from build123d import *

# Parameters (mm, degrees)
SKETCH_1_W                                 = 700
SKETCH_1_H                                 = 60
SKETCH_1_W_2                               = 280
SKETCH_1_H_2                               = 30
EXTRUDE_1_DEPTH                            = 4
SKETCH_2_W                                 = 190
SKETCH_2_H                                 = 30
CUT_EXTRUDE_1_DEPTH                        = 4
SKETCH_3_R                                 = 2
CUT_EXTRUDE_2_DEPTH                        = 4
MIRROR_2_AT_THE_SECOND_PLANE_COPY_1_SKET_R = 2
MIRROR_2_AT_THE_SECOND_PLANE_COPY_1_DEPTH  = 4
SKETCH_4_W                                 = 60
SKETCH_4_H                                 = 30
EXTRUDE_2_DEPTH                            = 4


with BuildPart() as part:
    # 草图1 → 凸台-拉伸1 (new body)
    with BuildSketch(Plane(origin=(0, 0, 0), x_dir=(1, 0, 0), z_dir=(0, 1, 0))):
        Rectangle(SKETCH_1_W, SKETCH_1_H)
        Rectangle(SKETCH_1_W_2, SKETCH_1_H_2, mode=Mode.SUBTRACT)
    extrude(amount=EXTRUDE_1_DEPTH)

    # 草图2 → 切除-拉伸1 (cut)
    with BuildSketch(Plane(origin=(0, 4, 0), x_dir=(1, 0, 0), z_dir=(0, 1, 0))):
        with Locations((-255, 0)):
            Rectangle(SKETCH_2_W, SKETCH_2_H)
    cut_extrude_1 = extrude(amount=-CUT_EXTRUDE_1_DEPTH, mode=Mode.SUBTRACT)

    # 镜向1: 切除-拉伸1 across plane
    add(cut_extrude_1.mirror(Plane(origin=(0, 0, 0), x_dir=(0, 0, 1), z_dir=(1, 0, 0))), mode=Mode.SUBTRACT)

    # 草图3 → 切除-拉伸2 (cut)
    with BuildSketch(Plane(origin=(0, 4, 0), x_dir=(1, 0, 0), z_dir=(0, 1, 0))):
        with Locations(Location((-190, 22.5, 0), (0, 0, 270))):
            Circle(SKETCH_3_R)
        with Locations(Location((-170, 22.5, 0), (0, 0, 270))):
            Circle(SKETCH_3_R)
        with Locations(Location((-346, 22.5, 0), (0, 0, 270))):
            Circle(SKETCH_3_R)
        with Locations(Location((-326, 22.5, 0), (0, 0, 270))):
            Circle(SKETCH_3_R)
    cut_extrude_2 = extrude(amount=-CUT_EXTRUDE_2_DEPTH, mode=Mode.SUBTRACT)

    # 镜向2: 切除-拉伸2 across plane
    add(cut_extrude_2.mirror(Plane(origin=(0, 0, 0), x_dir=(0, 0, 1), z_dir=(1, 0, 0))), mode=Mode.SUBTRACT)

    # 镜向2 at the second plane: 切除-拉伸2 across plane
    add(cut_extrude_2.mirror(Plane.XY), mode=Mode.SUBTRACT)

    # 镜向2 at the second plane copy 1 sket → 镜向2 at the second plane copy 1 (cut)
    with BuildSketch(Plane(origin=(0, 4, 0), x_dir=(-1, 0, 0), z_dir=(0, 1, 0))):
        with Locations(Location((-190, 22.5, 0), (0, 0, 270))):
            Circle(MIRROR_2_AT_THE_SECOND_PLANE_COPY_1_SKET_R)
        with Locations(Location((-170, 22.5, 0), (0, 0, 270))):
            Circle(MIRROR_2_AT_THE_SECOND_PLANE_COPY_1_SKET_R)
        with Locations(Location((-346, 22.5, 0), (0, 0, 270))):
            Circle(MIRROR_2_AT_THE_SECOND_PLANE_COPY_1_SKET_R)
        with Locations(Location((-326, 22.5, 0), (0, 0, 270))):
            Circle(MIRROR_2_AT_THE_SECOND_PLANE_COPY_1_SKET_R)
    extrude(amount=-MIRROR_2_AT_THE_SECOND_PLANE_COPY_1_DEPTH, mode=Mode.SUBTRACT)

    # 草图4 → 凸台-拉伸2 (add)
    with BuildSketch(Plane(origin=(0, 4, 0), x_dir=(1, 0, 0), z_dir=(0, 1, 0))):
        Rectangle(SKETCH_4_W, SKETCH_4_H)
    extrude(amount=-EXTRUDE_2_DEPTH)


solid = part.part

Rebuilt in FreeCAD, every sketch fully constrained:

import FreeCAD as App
import Part
import Sketcher

V = App.Vector

doc = App.newDocument("Part")
body = doc.addObject("PartDesign::Body", "Body")

sketch1 = body.newObject("Sketcher::SketchObject", "Sketch")
sketch1.AttachmentSupport = (doc.getObject("XZ_Plane"), [""])
sketch1.MapMode = "FlatFace"
sketch1.addGeometry(Part.LineSegment(V(-350, -30, 0), V(-350, 30, 0)), False)
sketch1.addGeometry(Part.LineSegment(V(-350, 30, 0), V(350, 30, 0)), False)
sketch1.addGeometry(Part.LineSegment(V(350, 30, 0), V(350, -30, 0)), False)
sketch1.addGeometry(Part.LineSegment(V(350, -30, 0), V(-350, -30, 0)), False)
sketch1.addGeometry(Part.LineSegment(V(140, 15, 0), V(-140, 15, 0)), False)
sketch1.addGeometry(Part.LineSegment(V(-140, 15, 0), V(-140, -15, 0)), False)
sketch1.addGeometry(Part.LineSegment(V(-140, -15, 0), V(140, -15, 0)), False)
sketch1.addGeometry(Part.LineSegment(V(140, -15, 0), V(140, 15, 0)), False)
sketch1.addConstraint(Sketcher.Constraint("Coincident", 0, 2, 1, 1))
sketch1.addConstraint(Sketcher.Constraint("Coincident", 1, 2, 2, 1))
sketch1.addConstraint(Sketcher.Constraint("Coincident", 2, 2, 3, 1))
sketch1.addConstraint(Sketcher.Constraint("Coincident", 3, 2, 0, 1))
sketch1.addConstraint(Sketcher.Constraint("Coincident", 4, 2, 5, 1))
sketch1.addConstraint(Sketcher.Constraint("Coincident", 5, 2, 6, 1))
sketch1.addConstraint(Sketcher.Constraint("Coincident", 6, 2, 7, 1))
sketch1.addConstraint(Sketcher.Constraint("Coincident", 7, 2, 4, 1))
sketch1.addConstraint(Sketcher.Constraint("Vertical", 0))
sketch1.addConstraint(Sketcher.Constraint("Horizontal", 1))
sketch1.addConstraint(Sketcher.Constraint("Vertical", 2))
sketch1.addConstraint(Sketcher.Constraint("Horizontal", 3))
sketch1.addConstraint(Sketcher.Constraint("Horizontal", 4))
sketch1.addConstraint(Sketcher.Constraint("Vertical", 5))
sketch1.addConstraint(Sketcher.Constraint("Horizontal", 6))
sketch1.addConstraint(Sketcher.Constraint("Vertical", 7))
sketch1.addConstraint(Sketcher.Constraint("Symmetric", 0, 2, 2, 2, -1, 1))
sketch1.addConstraint(Sketcher.Constraint("Symmetric", 4, 2, 6, 2, -1, 1))
sketch1.addConstraint(Sketcher.Constraint("DistanceX", 1, 1, 1, 2, 700.0))
sketch1.addConstraint(Sketcher.Constraint("DistanceX", 4, 2, 4, 1, 280.0))
sketch1.addConstraint(Sketcher.Constraint("DistanceY", 0, 1, 0, 2, 60.0))
sketch1.addConstraint(Sketcher.Constraint("DistanceY", 5, 2, 5, 1, 30.0))
pad1 = body.newObject("PartDesign::Pad", "Pad")
pad1.Profile = sketch1
pad1.Length = 4
pad1.Reversed = True

sketch2 = body.newObject("Sketcher::SketchObject", "Sketch001")
sketch2.AttachmentSupport = (doc.getObject("XZ_Plane"), [""])
sketch2.MapMode = "FlatFace"
sketch2.AttachmentOffset = App.Placement(V(0, 0, -4), App.Rotation())
sketch2.addGeometry(Part.LineSegment(V(-350, -15, 0), V(-350, 15, 0)), False)
sketch2.addGeometry(Part.LineSegment(V(-350, 15, 0), V(-160, 15, 0)), False)
sketch2.addGeometry(Part.LineSegment(V(-160, 15, 0), V(-160, -15, 0)), False)
sketch2.addGeometry(Part.LineSegment(V(-160, -15, 0), V(-350, -15, 0)), False)
sketch2.addConstraint(Sketcher.Constraint("Coincident", 0, 2, 1, 1))
sketch2.addConstraint(Sketcher.Constraint("Coincident", 1, 2, 2, 1))
sketch2.addConstraint(Sketcher.Constraint("Coincident", 2, 2, 3, 1))
sketch2.addConstraint(Sketcher.Constraint("Coincident", 3, 2, 0, 1))
sketch2.addConstraint(Sketcher.Constraint("Vertical", 0))
sketch2.addConstraint(Sketcher.Constraint("Horizontal", 1))
sketch2.addConstraint(Sketcher.Constraint("Vertical", 2))
sketch2.addConstraint(Sketcher.Constraint("Horizontal", 3))
sketch2.addConstraint(Sketcher.Constraint("DistanceX", 1, 1, 1, 2, 190.0))
sketch2.addConstraint(Sketcher.Constraint("DistanceY", 0, 1, 0, 2, 30.0))
sketch2.addConstraint(Sketcher.Constraint("DistanceX", 0, 2, -1, 1, 350.0))
sketch2.addConstraint(Sketcher.Constraint("DistanceY", -1, 1, 0, 2, 15.0))
pocket1 = body.newObject("PartDesign::Pocket", "Pocket")
pocket1.Profile = sketch2
pocket1.Length = 4
pocket1.Reversed = True
doc.recompute()

mirrored = body.newObject("PartDesign::Mirrored", "Mirrored")
mirrored.Originals = [pocket1]
mirrored.MirrorPlane = (doc.getObject("YZ_Plane"), [""])
body.Tip = mirrored

sketch3 = body.newObject("Sketcher::SketchObject", "Sketch002")
sketch3.AttachmentSupport = (doc.getObject("XZ_Plane"), [""])
sketch3.MapMode = "FlatFace"
sketch3.AttachmentOffset = App.Placement(V(0, 0, -4), App.Rotation())
sketch3.addGeometry(Part.Circle(V(-190, -22.5, 0), V(0, 0, 1), 2), False)
sketch3.addGeometry(Part.Circle(V(-170, -22.5, 0), V(0, 0, 1), 2), False)
sketch3.addGeometry(Part.Circle(V(-346, -22.5, 0), V(0, 0, 1), 2), False)
sketch3.addGeometry(Part.Circle(V(-326, -22.5, 0), V(0, 0, 1), 2), False)
sketch3.addConstraint(Sketcher.Constraint("Equal", 0, 1))
sketch3.addConstraint(Sketcher.Constraint("Equal", 1, 2))
sketch3.addConstraint(Sketcher.Constraint("Equal", 2, 3))
sketch3.addConstraint(Sketcher.Constraint("Horizontal", 0, 3, 1, 3))
sketch3.addConstraint(Sketcher.Constraint("Horizontal", 1, 3, 2, 3))
sketch3.addConstraint(Sketcher.Constraint("Horizontal", 2, 3, 3, 3))
sketch3.addConstraint(Sketcher.Constraint("Diameter", 0, 4.0))
sketch3.addConstraint(Sketcher.Constraint("DistanceX", 0, 3, -1, 1, 190.0))
sketch3.addConstraint(Sketcher.Constraint("DistanceX", 1, 3, -1, 1, 170.0))
sketch3.addConstraint(Sketcher.Constraint("DistanceX", 2, 3, -1, 1, 346.0))
sketch3.addConstraint(Sketcher.Constraint("DistanceX", 3, 3, -1, 1, 326.0))
sketch3.addConstraint(Sketcher.Constraint("DistanceY", 0, 3, -1, 1, 22.5))
pocket2 = body.newObject("PartDesign::Pocket", "Pocket001")
pocket2.Profile = sketch3
pocket2.Length = 4
pocket2.Reversed = True
doc.recompute()

mirrored2 = body.newObject("PartDesign::Mirrored", "Mirrored001")
mirrored2.Originals = [pocket2]
mirrored2.MirrorPlane = (doc.getObject("YZ_Plane"), [""])
body.Tip = mirrored2
doc.recompute()

mirrored3 = body.newObject("PartDesign::Mirrored", "Mirrored002")
mirrored3.Originals = [pocket2]
mirrored3.MirrorPlane = (doc.getObject("XY_Plane"), [""])
body.Tip = mirrored3

sketch4 = body.newObject("Sketcher::SketchObject", "Sketch003")
sketch4.AttachmentSupport = (doc.getObject("XZ_Plane"), [""])
sketch4.MapMode = "FlatFace"
sketch4.AttachmentOffset = App.Placement(V(0, 0, -4), App.Rotation())
sketch4.addGeometry(Part.Circle(V(190, 22.5, 0), V(0, 0, 1), 2), False)
sketch4.addGeometry(Part.Circle(V(170, 22.5, 0), V(0, 0, 1), 2), False)
sketch4.addGeometry(Part.Circle(V(346, 22.5, 0), V(0, 0, 1), 2), False)
sketch4.addGeometry(Part.Circle(V(326, 22.5, 0), V(0, 0, 1), 2), False)
sketch4.addConstraint(Sketcher.Constraint("Equal", 0, 1))
sketch4.addConstraint(Sketcher.Constraint("Equal", 1, 2))
sketch4.addConstraint(Sketcher.Constraint("Equal", 2, 3))
sketch4.addConstraint(Sketcher.Constraint("Horizontal", 0, 3, 1, 3))
sketch4.addConstraint(Sketcher.Constraint("Horizontal", 1, 3, 2, 3))
sketch4.addConstraint(Sketcher.Constraint("Horizontal", 2, 3, 3, 3))
sketch4.addConstraint(Sketcher.Constraint("Diameter", 0, 4.0))
sketch4.addConstraint(Sketcher.Constraint("DistanceX", -1, 1, 0, 3, 190.0))
sketch4.addConstraint(Sketcher.Constraint("DistanceX", -1, 1, 1, 3, 170.0))
sketch4.addConstraint(Sketcher.Constraint("DistanceX", -1, 1, 2, 3, 346.0))
sketch4.addConstraint(Sketcher.Constraint("DistanceX", -1, 1, 3, 3, 326.0))
sketch4.addConstraint(Sketcher.Constraint("DistanceY", -1, 1, 0, 3, 22.5))
pocket3 = body.newObject("PartDesign::Pocket", "Pocket002")
pocket3.Profile = sketch4
pocket3.Length = 4
pocket3.Reversed = True

sketch5 = body.newObject("Sketcher::SketchObject", "Sketch004")
sketch5.AttachmentSupport = (doc.getObject("XZ_Plane"), [""])
sketch5.MapMode = "FlatFace"
sketch5.AttachmentOffset = App.Placement(V(0, 0, -4), App.Rotation())
sketch5.addGeometry(Part.LineSegment(V(-30, -15, 0), V(-30, 15, 0)), False)
sketch5.addGeometry(Part.LineSegment(V(-30, 15, 0), V(30, 15, 0)), False)
sketch5.addGeometry(Part.LineSegment(V(30, 15, 0), V(30, -15, 0)), False)
sketch5.addGeometry(Part.LineSegment(V(30, -15, 0), V(-30, -15, 0)), False)
sketch5.addConstraint(Sketcher.Constraint("Coincident", 0, 2, 1, 1))
sketch5.addConstraint(Sketcher.Constraint("Coincident", 1, 2, 2, 1))
sketch5.addConstraint(Sketcher.Constraint("Coincident", 2, 2, 3, 1))
sketch5.addConstraint(Sketcher.Constraint("Coincident", 3, 2, 0, 1))
sketch5.addConstraint(Sketcher.Constraint("Vertical", 0))
sketch5.addConstraint(Sketcher.Constraint("Horizontal", 1))
sketch5.addConstraint(Sketcher.Constraint("Vertical", 2))
sketch5.addConstraint(Sketcher.Constraint("Horizontal", 3))
sketch5.addConstraint(Sketcher.Constraint("Symmetric", 0, 2, 2, 2, -1, 1))
sketch5.addConstraint(Sketcher.Constraint("DistanceX", 1, 1, 1, 2, 60.0))
sketch5.addConstraint(Sketcher.Constraint("DistanceY", 0, 1, 0, 2, 30.0))
pad2 = body.newObject("PartDesign::Pad", "Pad001")
pad2.Profile = sketch5
pad2.Length = 4

doc.recompute()
